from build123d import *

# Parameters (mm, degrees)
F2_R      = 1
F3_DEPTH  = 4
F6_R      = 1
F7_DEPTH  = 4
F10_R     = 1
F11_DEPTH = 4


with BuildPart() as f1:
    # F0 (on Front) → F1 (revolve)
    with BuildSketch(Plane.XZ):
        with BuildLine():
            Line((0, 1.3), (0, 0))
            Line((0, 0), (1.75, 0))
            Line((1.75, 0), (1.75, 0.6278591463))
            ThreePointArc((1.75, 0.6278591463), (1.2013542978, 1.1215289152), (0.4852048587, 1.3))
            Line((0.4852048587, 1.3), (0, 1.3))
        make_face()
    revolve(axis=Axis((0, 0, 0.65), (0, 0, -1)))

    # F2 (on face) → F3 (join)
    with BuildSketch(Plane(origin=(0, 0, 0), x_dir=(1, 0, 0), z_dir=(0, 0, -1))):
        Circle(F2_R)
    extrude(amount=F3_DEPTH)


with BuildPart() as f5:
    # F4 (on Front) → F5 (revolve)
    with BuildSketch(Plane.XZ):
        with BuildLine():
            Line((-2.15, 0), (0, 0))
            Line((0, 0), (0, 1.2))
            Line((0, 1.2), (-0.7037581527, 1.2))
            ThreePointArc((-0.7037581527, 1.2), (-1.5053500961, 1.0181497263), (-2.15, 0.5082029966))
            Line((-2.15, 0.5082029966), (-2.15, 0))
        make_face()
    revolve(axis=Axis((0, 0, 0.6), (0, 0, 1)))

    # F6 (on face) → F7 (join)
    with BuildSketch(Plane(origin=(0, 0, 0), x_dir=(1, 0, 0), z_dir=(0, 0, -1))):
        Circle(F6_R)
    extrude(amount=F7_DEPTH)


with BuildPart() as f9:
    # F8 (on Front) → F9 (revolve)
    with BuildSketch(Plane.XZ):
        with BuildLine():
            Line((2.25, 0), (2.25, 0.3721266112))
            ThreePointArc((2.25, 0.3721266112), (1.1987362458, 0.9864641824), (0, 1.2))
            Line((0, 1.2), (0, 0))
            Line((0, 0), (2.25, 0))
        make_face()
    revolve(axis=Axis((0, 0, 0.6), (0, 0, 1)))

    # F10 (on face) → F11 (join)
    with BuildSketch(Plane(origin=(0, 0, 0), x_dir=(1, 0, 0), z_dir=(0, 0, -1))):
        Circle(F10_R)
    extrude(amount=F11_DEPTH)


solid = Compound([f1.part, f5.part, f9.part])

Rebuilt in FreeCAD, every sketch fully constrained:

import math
import FreeCAD as App
import Part
import Sketcher
Q = App.Units.Quantity

doc = App.newDocument("Part")
body = doc.addObject("PartDesign::Body", "Body")

sketch1 = body.newObject("Sketcher::SketchObject", "Sketch")
sketch1.AttachmentSupport = (doc.getObject("XZ_Plane"), [""])
sketch1.MapMode = "FlatFace"
sketch1.addGeometry([
    Part.LineSegment(App.Vector(0, 1.3, 0), App.Vector(0, 0, 0)),
    Part.LineSegment(App.Vector(0, 0, 0), App.Vector(1.75, 0, 0)),
    Part.LineSegment(App.Vector(1.75, 0, 0), App.Vector(1.75, 0.63, 0)),
    Part.ArcOfCircle(Part.Circle(App.Vector(0.49, -0.23, 0), App.Vector(0, 0, 1), 1.53), math.radians(34), math.radians(90)),
    Part.LineSegment(App.Vector(0.49, 1.3, 0), App.Vector(0, 1.3, 0)),
], False)
sketch1.addConstraint([
    Sketcher.Constraint("Coincident", 0, 2, 1, 1),
    Sketcher.Constraint("Coincident", 1, 2, 2, 1),
    Sketcher.Constraint("Coincident", 2, 2, 3, 1),
    Sketcher.Constraint("Tangent", 3, 2, 4, 1),
    Sketcher.Constraint("Coincident", 4, 2, 0, 1),
    Sketcher.Constraint("Vertical", 0),
    Sketcher.Constraint("Horizontal", 1),
    Sketcher.Constraint("Vertical", 2),
    Sketcher.Constraint("Horizontal", 4),
    Sketcher.Constraint("Coincident", 0, 2, -1, 1),
    Sketcher.Constraint("DistanceY", 0, 2, 0, 1, Q("1.3 mm")),
    Sketcher.Constraint("DistanceX", 1, 1, 1, 2, Q("1.75 mm")),
    Sketcher.Constraint("Radius", 3, Q("1.526079 mm")),
    Sketcher.Constraint("DistanceY", 2, 1, 2, 2, Q("0.627859 mm")),
])
revolution = body.newObject("PartDesign::Revolution", "Revolution")
revolution.Profile = sketch1
revolution.ReferenceAxis = (sketch1, ["V_Axis"])
revolution.Angle = 360

sketch2 = body.newObject("Sketcher::SketchObject", "Sketch001")
sketch2.AttachmentSupport = (doc.getObject("XY_Plane"), [""])
sketch2.MapMode = "FlatFace"
sketch2.addGeometry(Part.Circle(App.Vector(0, 0, 0), App.Vector(0, 0, 1), 1), False)
sketch2.addConstraint([
    Sketcher.Constraint("Coincident", 0, 3, -1, 1),
    Sketcher.Constraint("Diameter", 0, Q("2 mm")),
])
pad1 = body.newObject("PartDesign::Pad", "Pad")
pad1.Profile = sketch2
pad1.Length = 4
pad1.Reversed = True
body2 = doc.addObject("PartDesign::Body", "Body001")

sketch3 = body2.newObject("Sketcher::SketchObject", "Sketch002")
sketch3.AttachmentSupport = (doc.getObject("XZ_Plane001"), [""])
sketch3.MapMode = "FlatFace"
sketch3.addGeometry([
    Part.LineSegment(App.Vector(-2.1, 0, 0), App.Vector(0, 0, 0)),
    Part.LineSegment(App.Vector(0, 0, 0), App.Vector(0, 1.2, 0)),
    Part.LineSegment(App.Vector(0, 1.2, 0), App.Vector(-0.7, 1.2, 0)),
    Part.ArcOfCircle(Part.Circle(App.Vector(-0.7, -0.7, 0), App.Vector(0, 0, 1), 1.9), math.radians(90), math.radians(141)),
    Part.LineSegment(App.Vector(-2.1, 0.5, 0), App.Vector(-2.1, 0, 0)),
], False)
sketch3.addConstraint([
    Sketcher.Constraint("Coincident", 0, 2, 1, 1),
    Sketcher.Constraint("Coincident", 1, 2, 2, 1),
    Sketcher.Constraint("Tangent", 2, 2, 3, 1),
    Sketcher.Constraint("Coincident", 3, 2, 4, 1),
    Sketcher.Constraint("Coincident", 4, 2, 0, 1),
    Sketcher.Constraint("Horizontal", 0),
    Sketcher.Constraint("Vertical", 1),
    Sketcher.Constraint("Horizontal", 2),
    Sketcher.Constraint("Vertical", 4),
    Sketcher.Constraint("Coincident", 0, 2, -1, 1),
    Sketcher.Constraint("DistanceY", 1, 1, 1, 2, Q("1.2 mm")),
    Sketcher.Constraint("DistanceX", 0, 1, 0, 2, Q("2.15 mm")),
    Sketcher.Constraint("Radius", 3, Q("1.857625 mm")),
    Sketcher.Constraint("DistanceX", 2, 2, 2, 1, Q("0.703758 mm")),
])
revolution2 = body2.newObject("PartDesign::Revolution", "Revolution001")
revolution2.Profile = sketch3
revolution2.ReferenceAxis = (sketch3, ["V_Axis"])
revolution2.Angle = 360

sketch4 = body2.newObject("Sketcher::SketchObject", "Sketch003")
sketch4.AttachmentSupport = (doc.getObject("XY_Plane001"), [""])
sketch4.MapMode = "FlatFace"
sketch4.addGeometry(Part.Circle(App.Vector(0, 0, 0), App.Vector(0, 0, 1), 1), False)
sketch4.addConstraint([
    Sketcher.Constraint("Coincident", 0, 3, -1, 1),
    Sketcher.Constraint("Diameter", 0, Q("2 mm")),
])
pad2 = body2.newObject("PartDesign::Pad", "Pad001")
pad2.Profile = sketch4
pad2.Length = 4
pad2.Reversed = True
body3 = doc.addObject("PartDesign::Body", "Body002")

sketch5 = body3.newObject("Sketcher::SketchObject", "Sketch004")
sketch5.AttachmentSupport = (doc.getObject("XZ_Plane002"), [""])
sketch5.MapMode = "FlatFace"
sketch5.addGeometry([
    Part.LineSegment(App.Vector(2.25, 0, 0), App.Vector(2.25, 0.37, 0)),
    Part.ArcOfCircle(Part.Circle(App.Vector(0, -2.27, 0), App.Vector(0, 0, 1), 3.47), math.radians(50), math.radians(90)),
    Part.LineSegment(App.Vector(0, 1.2, 0), App.Vector(0, 0, 0)),
    Part.LineSegment(App.Vector(0, 0, 0), App.Vector(2.25, 0, 0)),
], False)
sketch5.addConstraint([
    Sketcher.Constraint("Coincident", 0, 2, 1, 1),
    Sketcher.Constraint("Coincident", 1, 2, 2, 1),
    Sketcher.Constraint("Coincident", 2, 2, 3, 1),
    Sketcher.Constraint("Coincident", 3, 2, 0, 1),
    Sketcher.Constraint("Vertical", 0),
    Sketcher.Constraint("Vertical", 2),
    Sketcher.Constraint("Horizontal", 3),
    Sketcher.Constraint("Coincident", 2, 2, -1, 1),
    Sketcher.Constraint("PointOnObject", 1, 3, -2),
    Sketcher.Constraint("DistanceY", 2, 2, 2, 1, Q("1.2 mm")),
    Sketcher.Constraint("DistanceX", 3, 1, 3, 2, Q("2.25 mm")),
    Sketcher.Constraint("Radius", 1, Q("3.471469 mm")),
])
revolution3 = body3.newObject("PartDesign::Revolution", "Revolution002")
revolution3.Profile = sketch5
revolution3.ReferenceAxis = (sketch5, ["V_Axis"])
revolution3.Angle = 360

sketch6 = body3.newObject("Sketcher::SketchObject", "Sketch005")
sketch6.AttachmentSupport = (doc.getObject("XY_Plane002"), [""])
sketch6.MapMode = "FlatFace"
sketch6.addGeometry(Part.Circle(App.Vector(0, 0, 0), App.Vector(0, 0, 1), 1), False)
sketch6.addConstraint([
    Sketcher.Constraint("Coincident", 0, 3, -1, 1),
    Sketcher.Constraint("Diameter", 0, Q("2 mm")),
])
pad3 = body3.newObject("PartDesign::Pad", "Pad002")
pad3.Profile = sketch6
pad3.Length = 4
pad3.Reversed = True

doc.recompute()
